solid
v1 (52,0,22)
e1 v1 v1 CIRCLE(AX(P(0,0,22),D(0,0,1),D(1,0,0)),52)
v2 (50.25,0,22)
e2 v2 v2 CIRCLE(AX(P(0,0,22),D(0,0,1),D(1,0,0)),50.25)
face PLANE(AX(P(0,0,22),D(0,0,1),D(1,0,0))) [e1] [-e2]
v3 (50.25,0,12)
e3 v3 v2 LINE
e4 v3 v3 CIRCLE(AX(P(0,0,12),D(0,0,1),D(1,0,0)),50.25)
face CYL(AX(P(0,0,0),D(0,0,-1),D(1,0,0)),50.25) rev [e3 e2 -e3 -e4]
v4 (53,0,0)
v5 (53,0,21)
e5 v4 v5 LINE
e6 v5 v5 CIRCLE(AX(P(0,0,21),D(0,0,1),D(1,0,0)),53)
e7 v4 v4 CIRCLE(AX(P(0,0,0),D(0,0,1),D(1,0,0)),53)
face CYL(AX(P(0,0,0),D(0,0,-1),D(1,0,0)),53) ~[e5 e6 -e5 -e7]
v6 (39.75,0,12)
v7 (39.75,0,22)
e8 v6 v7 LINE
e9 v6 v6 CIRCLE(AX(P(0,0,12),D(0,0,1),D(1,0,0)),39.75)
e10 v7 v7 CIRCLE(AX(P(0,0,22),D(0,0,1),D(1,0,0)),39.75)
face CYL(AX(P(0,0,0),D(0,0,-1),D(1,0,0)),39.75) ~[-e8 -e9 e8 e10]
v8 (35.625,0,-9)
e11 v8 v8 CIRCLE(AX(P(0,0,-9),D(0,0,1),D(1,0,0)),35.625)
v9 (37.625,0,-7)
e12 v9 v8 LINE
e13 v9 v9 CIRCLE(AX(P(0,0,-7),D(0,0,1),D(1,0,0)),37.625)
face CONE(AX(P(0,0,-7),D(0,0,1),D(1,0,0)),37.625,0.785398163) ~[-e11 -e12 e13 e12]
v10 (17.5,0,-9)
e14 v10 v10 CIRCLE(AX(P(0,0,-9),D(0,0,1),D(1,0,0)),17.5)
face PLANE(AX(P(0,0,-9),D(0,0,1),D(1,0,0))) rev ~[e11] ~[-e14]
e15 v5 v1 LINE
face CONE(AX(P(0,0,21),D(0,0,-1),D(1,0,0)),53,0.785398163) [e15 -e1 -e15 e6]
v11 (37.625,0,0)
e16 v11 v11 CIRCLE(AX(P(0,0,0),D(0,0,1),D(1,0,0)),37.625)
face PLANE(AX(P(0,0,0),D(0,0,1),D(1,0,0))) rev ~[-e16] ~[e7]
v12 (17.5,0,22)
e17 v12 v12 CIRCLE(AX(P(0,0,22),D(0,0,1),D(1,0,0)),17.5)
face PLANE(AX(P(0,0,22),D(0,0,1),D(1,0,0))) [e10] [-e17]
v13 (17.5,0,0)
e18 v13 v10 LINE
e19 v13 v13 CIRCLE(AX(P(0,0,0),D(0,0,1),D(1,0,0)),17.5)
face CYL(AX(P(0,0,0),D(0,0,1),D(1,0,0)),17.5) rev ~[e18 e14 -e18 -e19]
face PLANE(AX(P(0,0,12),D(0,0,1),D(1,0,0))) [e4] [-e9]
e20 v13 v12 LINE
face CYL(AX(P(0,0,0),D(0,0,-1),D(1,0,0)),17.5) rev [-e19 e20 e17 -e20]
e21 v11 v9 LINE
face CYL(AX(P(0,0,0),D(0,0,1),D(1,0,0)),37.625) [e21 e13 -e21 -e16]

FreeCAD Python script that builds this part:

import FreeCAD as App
import Part
import Sketcher
from FreeCAD import Vector
Q = App.Units.Quantity


def edges_at(feature, points):
    """Names of the edges that pass closest to the given points."""
    edges = feature.Shape.Edges
    near = lambda p: min(range(len(edges)), key=lambda i: edges[i].distToShape(Part.Vertex(*p))[0])
    return sorted({f"Edge{near(p) + 1}" for p in points})

doc = App.newDocument("Part")
body = doc.addObject("PartDesign::Body", "Body")

# Sketch on XY plane
sketch1 = doc.addObject("Sketcher::SketchObject", "Sketch")
body.addObject(sketch1)
sketch1.AttachmentSupport = (doc.XY_Plane, [""])
sketch1.MapMode = "FlatFace"
sketch1.addGeometry(Part.Circle(Vector(0, 0, 0), Vector(0, 0, 1), 53), False)
sketch1.addGeometry(Part.Circle(Vector(0, 0, 0), Vector(0, 0, 1), 50.25), False)
sketch1.addConstraint(Sketcher.Constraint("Coincident", 0, 3, -1, 1))
sketch1.addConstraint(Sketcher.Constraint("Coincident", 1, 3, -1, 1))
sketch1.addConstraint(Sketcher.Constraint("Diameter", 0, Q("106 mm")))
sketch1.addConstraint(Sketcher.Constraint("Diameter", 1, Q("100.5 mm")))
pad1 = doc.addObject("PartDesign::Pad", "Pad")
body.addObject(pad1)
pad1.Profile = sketch1
pad1.Length = 22
doc.recompute()

chamfer = doc.addObject("PartDesign::Chamfer", "Chamfer")
body.addObject(chamfer)
chamfer.Base = (pad1, edges_at(pad1, [(-53, 0, 22)]))
chamfer.Size = 1
body2 = doc.addObject("PartDesign::Body", "Body001")

# Sketch on XY plane
sketch2 = doc.addObject("Sketcher::SketchObject", "Sketch001")
body2.addObject(sketch2)
sketch2.AttachmentSupport = (doc.getObject("XY_Plane001"), [""])
sketch2.MapMode = "FlatFace"
sketch2.addGeometry(Part.Circle(Vector(0, 0, 0), Vector(0, 0, 1), 39.75), False)
sketch2.addGeometry(Part.Circle(Vector(0, 0, 0), Vector(0, 0, 1), 17.5), False)
sketch2.addConstraint(Sketcher.Constraint("Coincident", 0, 3, -1, 1))
sketch2.addConstraint(Sketcher.Constraint("Coincident", 1, 3, -1, 1))
sketch2.addConstraint(Sketcher.Constraint("Diameter", 1, Q("35 mm")))
sketch2.addConstraint(Sketcher.Constraint("Diameter", 0, Q("79.5 mm")))
pad2 = doc.addObject("PartDesign::Pad", "Pad001")
body2.addObject(pad2)
pad2.Profile = sketch2
pad2.Length = 22
body.AllowCompound = True
doc.recompute()

boolean = doc.addObject("PartDesign::Boolean", "Boolean")
body.addObject(boolean)
boolean.Type = "Fuse"
boolean.addObjects([body2])

# Sketch on XY plane
sketch3 = doc.addObject("Sketcher::SketchObject", "Sketch002")
body.addObject(sketch3)
sketch3.AttachmentSupport = (doc.XY_Plane, [""])
sketch3.MapMode = "FlatFace"
sketch3.addGeometry(Part.Circle(Vector(0, 0, 0), Vector(0, 0, 1), 50.25), False)
sketch3.addGeometry(Part.Circle(Vector(0, 0, 0), Vector(0, 0, 1), 39.75), False)
sketch3.addConstraint(Sketcher.Constraint("Coincident", 0, 3, -1, 1))
sketch3.addConstraint(Sketcher.Constraint("Coincident", 1, 3, -1, 1))
sketch3.addConstraint(Sketcher.Constraint("Diameter", 0, Q("100.5 mm")))
sketch3.addConstraint(Sketcher.Constraint("Diameter", 1, Q("79.5 mm")))
pad3 = doc.addObject("PartDesign::Pad", "Pad002")
body.addObject(pad3)
pad3.Profile = sketch3
pad3.Length = 12

# Sketch on XY plane
sketch4 = doc.addObject("Sketcher::SketchObject", "Sketch003")
body.addObject(sketch4)
sketch4.AttachmentSupport = (doc.XY_Plane, [""])
sketch4.MapMode = "FlatFace"
sketch4.addGeometry(Part.Circle(Vector(0, 0, 0), Vector(0, 0, 1), 37.625), False)
sketch4.addGeometry(Part.Circle(Vector(0, 0, 0), Vector(0, 0, 1), 17.5), False)
sketch4.addConstraint(Sketcher.Constraint("Coincident", 0, 3, -1, 1))
sketch4.addConstraint(Sketcher.Constraint("Coincident", 1, 3, -1, 1))
sketch4.addConstraint(Sketcher.Constraint("Diameter", 1, Q("35 mm")))
sketch4.addConstraint(Sketcher.Constraint("Diameter", 0, Q("75.25 mm")))
pad4 = doc.addObject("PartDesign::Pad", "Pad003")
body.addObject(pad4)
pad4.Profile = sketch4
pad4.Length = 9
pad4.Reversed = True
doc.recompute()

chamfer2 = doc.addObject("PartDesign::Chamfer", "Chamfer001")
body.addObject(chamfer2)
chamfer2.Base = (pad4, edges_at(pad4, [(-37.625, 0, -9)]))
chamfer2.Size = 2

doc.recompute()
